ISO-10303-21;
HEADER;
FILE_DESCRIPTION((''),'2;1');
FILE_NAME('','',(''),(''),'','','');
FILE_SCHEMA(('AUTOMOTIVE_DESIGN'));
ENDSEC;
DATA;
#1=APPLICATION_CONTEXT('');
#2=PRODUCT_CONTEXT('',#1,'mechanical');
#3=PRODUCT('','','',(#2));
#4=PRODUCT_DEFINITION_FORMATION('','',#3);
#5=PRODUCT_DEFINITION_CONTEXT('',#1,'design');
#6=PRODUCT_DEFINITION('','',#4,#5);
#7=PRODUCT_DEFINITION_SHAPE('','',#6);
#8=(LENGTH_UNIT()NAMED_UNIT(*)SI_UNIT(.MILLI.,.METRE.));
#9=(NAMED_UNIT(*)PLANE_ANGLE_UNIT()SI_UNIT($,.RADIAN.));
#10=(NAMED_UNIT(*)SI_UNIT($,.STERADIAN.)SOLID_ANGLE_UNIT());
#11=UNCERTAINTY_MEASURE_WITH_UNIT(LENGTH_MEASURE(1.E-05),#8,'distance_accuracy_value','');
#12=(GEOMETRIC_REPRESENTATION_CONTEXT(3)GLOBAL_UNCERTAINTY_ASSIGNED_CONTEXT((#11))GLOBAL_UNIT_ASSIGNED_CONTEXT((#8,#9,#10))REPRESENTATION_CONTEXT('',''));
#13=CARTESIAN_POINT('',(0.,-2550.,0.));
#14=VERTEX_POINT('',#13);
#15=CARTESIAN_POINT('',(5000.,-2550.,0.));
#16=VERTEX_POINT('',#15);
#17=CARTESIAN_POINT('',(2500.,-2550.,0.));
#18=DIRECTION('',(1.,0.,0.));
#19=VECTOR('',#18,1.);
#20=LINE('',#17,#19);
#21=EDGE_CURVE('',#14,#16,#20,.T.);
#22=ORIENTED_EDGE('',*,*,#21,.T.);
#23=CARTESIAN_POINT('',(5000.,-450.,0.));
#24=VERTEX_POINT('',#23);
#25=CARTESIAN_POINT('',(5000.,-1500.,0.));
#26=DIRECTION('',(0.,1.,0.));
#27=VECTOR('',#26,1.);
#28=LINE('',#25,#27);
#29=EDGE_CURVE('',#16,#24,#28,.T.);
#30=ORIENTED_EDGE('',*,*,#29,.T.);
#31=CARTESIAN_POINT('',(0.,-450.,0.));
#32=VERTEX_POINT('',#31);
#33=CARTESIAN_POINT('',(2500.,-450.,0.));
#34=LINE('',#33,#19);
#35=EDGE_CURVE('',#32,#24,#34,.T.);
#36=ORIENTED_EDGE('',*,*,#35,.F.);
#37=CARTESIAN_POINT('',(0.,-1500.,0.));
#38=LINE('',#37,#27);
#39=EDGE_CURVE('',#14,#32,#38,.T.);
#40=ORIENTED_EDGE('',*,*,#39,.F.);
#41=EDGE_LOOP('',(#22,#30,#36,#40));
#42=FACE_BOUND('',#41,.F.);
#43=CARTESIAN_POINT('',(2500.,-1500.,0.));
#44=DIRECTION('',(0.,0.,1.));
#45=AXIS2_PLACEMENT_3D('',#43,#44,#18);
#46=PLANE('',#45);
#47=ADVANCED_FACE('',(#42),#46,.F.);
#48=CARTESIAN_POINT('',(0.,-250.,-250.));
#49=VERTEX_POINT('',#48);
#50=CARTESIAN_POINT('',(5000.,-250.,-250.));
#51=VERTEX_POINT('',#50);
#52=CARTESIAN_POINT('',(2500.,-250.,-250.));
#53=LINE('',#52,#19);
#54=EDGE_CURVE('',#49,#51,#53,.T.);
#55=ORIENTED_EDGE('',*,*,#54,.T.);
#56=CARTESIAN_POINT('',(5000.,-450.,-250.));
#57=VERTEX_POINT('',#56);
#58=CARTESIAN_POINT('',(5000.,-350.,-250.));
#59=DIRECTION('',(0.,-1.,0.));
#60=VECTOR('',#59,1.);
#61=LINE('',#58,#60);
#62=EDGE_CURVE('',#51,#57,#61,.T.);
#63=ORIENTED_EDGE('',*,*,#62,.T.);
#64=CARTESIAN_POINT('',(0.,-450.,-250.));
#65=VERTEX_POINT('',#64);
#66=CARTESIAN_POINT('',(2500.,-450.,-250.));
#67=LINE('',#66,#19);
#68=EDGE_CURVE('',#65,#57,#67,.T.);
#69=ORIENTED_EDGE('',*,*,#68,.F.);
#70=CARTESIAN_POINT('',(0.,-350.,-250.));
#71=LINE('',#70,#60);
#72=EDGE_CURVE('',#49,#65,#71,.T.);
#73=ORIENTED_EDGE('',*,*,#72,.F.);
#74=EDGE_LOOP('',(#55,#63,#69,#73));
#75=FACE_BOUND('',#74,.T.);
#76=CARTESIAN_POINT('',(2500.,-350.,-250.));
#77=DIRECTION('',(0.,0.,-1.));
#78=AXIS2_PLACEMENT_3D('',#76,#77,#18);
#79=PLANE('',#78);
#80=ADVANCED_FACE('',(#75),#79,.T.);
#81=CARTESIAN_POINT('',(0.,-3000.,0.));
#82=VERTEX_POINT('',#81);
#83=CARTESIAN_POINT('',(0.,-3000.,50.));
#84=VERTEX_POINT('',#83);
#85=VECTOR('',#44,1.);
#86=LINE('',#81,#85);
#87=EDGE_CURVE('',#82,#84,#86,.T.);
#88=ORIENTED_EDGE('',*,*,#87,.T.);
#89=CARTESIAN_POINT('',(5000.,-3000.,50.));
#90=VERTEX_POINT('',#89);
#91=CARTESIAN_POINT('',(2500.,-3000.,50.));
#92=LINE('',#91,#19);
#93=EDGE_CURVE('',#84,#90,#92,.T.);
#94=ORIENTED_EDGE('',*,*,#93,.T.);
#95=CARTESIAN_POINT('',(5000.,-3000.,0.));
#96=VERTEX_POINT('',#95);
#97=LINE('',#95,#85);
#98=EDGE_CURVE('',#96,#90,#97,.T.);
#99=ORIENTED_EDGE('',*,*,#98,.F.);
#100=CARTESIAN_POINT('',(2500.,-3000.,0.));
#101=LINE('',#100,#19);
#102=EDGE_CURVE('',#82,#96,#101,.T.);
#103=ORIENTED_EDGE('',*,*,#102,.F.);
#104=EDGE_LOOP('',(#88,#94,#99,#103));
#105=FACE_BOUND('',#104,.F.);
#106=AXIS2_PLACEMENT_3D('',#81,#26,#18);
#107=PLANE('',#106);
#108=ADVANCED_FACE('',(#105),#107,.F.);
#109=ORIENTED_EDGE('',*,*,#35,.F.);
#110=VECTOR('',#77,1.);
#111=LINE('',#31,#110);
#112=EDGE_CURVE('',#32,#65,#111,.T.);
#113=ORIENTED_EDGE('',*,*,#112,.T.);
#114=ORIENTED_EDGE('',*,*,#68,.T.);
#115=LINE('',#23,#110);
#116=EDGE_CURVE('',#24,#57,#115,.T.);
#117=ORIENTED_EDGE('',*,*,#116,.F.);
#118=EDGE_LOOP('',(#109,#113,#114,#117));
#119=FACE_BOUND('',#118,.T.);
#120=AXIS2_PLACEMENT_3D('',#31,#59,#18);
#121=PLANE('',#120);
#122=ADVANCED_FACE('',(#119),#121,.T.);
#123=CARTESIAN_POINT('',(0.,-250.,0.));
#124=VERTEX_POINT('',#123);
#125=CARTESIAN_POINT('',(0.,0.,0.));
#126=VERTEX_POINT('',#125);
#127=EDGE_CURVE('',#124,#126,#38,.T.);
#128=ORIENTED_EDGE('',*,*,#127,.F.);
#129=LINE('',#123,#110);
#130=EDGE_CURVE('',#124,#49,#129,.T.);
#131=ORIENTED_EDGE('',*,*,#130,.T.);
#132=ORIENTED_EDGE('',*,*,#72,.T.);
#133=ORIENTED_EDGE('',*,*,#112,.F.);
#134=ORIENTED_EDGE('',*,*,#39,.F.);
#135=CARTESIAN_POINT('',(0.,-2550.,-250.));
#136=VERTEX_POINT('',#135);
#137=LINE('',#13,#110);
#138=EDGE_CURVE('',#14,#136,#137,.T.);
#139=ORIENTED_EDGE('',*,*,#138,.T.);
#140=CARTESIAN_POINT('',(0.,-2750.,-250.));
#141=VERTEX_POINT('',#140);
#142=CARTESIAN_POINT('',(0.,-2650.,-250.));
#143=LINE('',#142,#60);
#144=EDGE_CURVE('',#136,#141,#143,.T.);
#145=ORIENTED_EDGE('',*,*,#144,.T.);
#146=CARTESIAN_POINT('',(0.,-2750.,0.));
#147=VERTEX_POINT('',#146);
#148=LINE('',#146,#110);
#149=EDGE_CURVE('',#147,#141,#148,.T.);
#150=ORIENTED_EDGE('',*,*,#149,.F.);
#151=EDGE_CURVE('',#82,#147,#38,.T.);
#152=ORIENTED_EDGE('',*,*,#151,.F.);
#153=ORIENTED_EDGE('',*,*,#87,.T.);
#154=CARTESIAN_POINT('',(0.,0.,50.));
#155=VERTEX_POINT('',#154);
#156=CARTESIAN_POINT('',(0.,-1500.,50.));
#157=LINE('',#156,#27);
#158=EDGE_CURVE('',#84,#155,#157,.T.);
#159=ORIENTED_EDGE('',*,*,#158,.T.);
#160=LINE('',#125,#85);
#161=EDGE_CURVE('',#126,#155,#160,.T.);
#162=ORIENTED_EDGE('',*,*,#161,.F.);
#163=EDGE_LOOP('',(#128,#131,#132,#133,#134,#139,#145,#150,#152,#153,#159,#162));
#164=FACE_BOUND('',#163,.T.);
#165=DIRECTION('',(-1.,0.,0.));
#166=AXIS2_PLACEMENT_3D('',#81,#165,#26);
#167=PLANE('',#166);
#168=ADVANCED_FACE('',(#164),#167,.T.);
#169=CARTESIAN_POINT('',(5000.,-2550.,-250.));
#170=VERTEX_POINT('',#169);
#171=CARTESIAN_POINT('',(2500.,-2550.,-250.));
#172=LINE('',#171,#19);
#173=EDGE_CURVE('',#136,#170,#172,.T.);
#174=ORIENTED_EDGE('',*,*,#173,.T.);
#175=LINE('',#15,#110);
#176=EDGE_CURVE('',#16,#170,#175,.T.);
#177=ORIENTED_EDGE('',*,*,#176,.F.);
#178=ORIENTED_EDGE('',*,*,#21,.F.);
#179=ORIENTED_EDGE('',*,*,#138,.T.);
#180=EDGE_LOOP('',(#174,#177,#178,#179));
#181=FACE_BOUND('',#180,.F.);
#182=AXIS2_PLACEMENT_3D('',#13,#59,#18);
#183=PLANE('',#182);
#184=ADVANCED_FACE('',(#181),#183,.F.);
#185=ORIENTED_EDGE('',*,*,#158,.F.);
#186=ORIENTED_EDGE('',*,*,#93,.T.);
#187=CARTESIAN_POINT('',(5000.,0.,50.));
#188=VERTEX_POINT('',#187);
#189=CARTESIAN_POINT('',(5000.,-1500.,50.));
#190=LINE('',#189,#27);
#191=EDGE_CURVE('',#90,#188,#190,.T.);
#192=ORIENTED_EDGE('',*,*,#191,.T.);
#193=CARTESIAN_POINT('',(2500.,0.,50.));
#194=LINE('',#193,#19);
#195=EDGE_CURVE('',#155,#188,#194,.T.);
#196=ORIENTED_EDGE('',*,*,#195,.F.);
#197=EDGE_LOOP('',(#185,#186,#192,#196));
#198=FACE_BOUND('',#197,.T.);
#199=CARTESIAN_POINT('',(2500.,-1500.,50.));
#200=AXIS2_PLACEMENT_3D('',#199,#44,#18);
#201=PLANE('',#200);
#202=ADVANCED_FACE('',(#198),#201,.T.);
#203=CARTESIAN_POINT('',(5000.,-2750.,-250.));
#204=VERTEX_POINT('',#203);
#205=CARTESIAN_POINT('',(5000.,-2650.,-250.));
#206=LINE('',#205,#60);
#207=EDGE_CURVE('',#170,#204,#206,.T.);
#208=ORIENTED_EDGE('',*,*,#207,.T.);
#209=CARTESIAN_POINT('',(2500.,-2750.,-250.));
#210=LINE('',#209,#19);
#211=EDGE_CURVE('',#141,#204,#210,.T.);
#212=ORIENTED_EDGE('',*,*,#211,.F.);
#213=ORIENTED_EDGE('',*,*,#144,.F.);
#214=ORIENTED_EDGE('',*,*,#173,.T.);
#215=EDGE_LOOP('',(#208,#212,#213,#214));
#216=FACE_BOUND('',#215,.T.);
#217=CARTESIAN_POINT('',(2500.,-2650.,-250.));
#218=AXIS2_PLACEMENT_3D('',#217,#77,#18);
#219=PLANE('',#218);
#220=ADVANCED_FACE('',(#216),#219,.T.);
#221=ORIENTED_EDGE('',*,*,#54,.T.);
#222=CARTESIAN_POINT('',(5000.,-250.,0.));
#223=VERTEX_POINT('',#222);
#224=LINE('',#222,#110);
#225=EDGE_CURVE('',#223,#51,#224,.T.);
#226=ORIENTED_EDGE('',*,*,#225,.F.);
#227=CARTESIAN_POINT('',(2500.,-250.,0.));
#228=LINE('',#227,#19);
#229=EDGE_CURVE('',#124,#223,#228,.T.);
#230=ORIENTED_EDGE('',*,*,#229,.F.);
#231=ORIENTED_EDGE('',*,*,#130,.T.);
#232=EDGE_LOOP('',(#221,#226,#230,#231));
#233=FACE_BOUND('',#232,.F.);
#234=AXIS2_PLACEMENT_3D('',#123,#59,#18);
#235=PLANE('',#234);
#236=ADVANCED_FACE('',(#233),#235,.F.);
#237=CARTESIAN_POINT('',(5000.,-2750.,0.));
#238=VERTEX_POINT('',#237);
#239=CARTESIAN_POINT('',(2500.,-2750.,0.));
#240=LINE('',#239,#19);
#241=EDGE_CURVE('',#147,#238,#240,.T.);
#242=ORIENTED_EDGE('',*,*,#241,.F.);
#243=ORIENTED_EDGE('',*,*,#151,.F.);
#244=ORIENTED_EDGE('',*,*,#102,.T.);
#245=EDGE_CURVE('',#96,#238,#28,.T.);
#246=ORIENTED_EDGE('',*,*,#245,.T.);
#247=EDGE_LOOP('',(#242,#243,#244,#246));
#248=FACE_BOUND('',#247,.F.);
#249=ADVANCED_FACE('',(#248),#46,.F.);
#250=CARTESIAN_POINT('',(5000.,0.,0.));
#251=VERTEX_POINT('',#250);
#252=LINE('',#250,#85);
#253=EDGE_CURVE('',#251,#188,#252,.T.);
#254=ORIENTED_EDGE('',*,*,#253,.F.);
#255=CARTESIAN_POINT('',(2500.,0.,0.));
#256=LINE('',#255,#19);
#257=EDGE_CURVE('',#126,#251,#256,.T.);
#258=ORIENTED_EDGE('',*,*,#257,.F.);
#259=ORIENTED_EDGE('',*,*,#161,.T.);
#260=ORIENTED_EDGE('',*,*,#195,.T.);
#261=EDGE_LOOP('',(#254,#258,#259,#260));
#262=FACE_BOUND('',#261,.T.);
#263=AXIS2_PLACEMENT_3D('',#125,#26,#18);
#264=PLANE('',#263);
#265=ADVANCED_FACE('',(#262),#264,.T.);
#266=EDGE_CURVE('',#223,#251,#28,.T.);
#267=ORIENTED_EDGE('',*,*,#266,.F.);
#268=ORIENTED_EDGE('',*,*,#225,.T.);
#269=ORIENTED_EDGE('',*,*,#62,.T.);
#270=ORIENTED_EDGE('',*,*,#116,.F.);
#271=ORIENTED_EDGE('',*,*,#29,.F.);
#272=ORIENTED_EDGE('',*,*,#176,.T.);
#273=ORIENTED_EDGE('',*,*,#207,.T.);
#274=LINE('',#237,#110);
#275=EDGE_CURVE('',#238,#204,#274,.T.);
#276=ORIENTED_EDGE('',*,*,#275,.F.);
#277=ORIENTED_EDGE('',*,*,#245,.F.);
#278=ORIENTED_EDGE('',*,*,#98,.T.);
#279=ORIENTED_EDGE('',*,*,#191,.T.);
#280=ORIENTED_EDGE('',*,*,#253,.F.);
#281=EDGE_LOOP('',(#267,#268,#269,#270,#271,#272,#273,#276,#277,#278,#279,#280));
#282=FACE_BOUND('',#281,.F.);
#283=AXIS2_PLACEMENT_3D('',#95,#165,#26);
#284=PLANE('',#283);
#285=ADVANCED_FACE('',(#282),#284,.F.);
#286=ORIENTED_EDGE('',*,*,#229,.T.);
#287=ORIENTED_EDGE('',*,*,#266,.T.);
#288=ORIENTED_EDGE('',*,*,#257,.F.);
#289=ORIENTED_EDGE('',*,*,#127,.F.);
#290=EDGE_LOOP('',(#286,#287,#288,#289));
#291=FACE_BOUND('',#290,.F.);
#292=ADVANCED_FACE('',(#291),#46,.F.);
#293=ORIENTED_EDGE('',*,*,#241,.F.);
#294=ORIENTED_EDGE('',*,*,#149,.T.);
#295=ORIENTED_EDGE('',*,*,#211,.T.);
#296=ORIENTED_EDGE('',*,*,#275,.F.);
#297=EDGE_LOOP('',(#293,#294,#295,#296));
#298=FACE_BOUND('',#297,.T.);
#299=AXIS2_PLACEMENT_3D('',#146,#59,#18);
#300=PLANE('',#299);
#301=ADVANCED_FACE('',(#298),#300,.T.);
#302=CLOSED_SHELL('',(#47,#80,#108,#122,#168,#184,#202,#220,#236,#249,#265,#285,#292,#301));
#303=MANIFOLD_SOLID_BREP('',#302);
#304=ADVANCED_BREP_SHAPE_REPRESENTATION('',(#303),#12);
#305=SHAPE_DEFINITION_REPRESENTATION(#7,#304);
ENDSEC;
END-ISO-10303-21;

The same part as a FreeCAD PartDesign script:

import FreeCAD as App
import Part
import Sketcher
Q = App.Units.Quantity


def add_polygon(sketch, points):
    """Adds a closed chain of lines whose ends are joined by coincident constraints."""
    first, n = sketch.GeometryCount, len(points)
    for a, b in zip(points, points[1:] + points[:1]):
        sketch.addGeometry(Part.LineSegment(App.Vector(*a, 0), App.Vector(*b, 0)), False)
    for i in range(n):
        sketch.addConstraint(Sketcher.Constraint("Coincident", first + i, 2, first + (i + 1) % n, 1))

doc = App.newDocument("Part")
body = doc.addObject("PartDesign::Body", "Body")

sketch1 = body.newObject("Sketcher::SketchObject", "Sketch")
sketch1.AttachmentSupport = (doc.getObject("XY_Plane"), [""])
sketch1.MapMode = "FlatFace"
add_polygon(sketch1, [(0, 0), (0, -3000), (5000, -3000), (5000, 0)])
sketch1.addConstraint(Sketcher.Constraint("Vertical", 0))
sketch1.addConstraint(Sketcher.Constraint("Horizontal", 1))
sketch1.addConstraint(Sketcher.Constraint("Vertical", 2))
sketch1.addConstraint(Sketcher.Constraint("Horizontal", 3))
sketch1.addConstraint(Sketcher.Constraint("Coincident", 3, 2, -1, 1))
sketch1.addConstraint(Sketcher.Constraint("DistanceX", 1, 1, 1, 2, Q("5000 mm")))
sketch1.addConstraint(Sketcher.Constraint("DistanceY", 0, 2, 0, 1, Q("3000 mm")))
pad1 = body.newObject("PartDesign::Pad", "Pad")
pad1.Profile = sketch1
pad1.Length = 50

sketch2 = body.newObject("Sketcher::SketchObject", "Sketch001")
sketch2.AttachmentSupport = (doc.getObject("XY_Plane"), [""])
sketch2.MapMode = "FlatFace"
add_polygon(sketch2, [(0, -2750), (0, -2550), (5000, -2550), (5000, -2750)])
add_polygon(sketch2, [(0, -450), (0, -250), (5000, -250), (5000, -450)])
sketch2.addConstraint(Sketcher.Constraint("Vertical", 0))
sketch2.addConstraint(Sketcher.Constraint("Horizontal", 1))
sketch2.addConstraint(Sketcher.Constraint("Vertical", 2))
sketch2.addConstraint(Sketcher.Constraint("Horizontal", 3))
sketch2.addConstraint(Sketcher.Constraint("Vertical", 4))
sketch2.addConstraint(Sketcher.Constraint("Horizontal", 5))
sketch2.addConstraint(Sketcher.Constraint("Vertical", 6))
sketch2.addConstraint(Sketcher.Constraint("Horizontal", 7))
sketch2.addConstraint(Sketcher.Constraint("PointOnObject", 0, 2, -2))
sketch2.addConstraint(Sketcher.Constraint("PointOnObject", 4, 2, -2))
sketch2.addConstraint(Sketcher.Constraint("Vertical", 2, 2, 5, 2))
sketch2.addConstraint(Sketcher.Constraint("Equal", 2, 4))
sketch2.addConstraint(Sketcher.Constraint("DistanceX", 1, 1, 1, 2, Q("5000 mm")))
sketch2.addConstraint(Sketcher.Constraint("DistanceY", 0, 1, 0, 2, Q("200 mm")))
sketch2.addConstraint(Sketcher.Constraint("DistanceY", 0, 2, -1, 1, Q("2550 mm")))
sketch2.addConstraint(Sketcher.Constraint("DistanceY", 4, 2, -1, 1, Q("250 mm")))
pad2 = body.newObject("PartDesign::Pad", "Pad001")
pad2.Profile = sketch2
pad2.Length = 250
pad2.Reversed = True

doc.recompute()
